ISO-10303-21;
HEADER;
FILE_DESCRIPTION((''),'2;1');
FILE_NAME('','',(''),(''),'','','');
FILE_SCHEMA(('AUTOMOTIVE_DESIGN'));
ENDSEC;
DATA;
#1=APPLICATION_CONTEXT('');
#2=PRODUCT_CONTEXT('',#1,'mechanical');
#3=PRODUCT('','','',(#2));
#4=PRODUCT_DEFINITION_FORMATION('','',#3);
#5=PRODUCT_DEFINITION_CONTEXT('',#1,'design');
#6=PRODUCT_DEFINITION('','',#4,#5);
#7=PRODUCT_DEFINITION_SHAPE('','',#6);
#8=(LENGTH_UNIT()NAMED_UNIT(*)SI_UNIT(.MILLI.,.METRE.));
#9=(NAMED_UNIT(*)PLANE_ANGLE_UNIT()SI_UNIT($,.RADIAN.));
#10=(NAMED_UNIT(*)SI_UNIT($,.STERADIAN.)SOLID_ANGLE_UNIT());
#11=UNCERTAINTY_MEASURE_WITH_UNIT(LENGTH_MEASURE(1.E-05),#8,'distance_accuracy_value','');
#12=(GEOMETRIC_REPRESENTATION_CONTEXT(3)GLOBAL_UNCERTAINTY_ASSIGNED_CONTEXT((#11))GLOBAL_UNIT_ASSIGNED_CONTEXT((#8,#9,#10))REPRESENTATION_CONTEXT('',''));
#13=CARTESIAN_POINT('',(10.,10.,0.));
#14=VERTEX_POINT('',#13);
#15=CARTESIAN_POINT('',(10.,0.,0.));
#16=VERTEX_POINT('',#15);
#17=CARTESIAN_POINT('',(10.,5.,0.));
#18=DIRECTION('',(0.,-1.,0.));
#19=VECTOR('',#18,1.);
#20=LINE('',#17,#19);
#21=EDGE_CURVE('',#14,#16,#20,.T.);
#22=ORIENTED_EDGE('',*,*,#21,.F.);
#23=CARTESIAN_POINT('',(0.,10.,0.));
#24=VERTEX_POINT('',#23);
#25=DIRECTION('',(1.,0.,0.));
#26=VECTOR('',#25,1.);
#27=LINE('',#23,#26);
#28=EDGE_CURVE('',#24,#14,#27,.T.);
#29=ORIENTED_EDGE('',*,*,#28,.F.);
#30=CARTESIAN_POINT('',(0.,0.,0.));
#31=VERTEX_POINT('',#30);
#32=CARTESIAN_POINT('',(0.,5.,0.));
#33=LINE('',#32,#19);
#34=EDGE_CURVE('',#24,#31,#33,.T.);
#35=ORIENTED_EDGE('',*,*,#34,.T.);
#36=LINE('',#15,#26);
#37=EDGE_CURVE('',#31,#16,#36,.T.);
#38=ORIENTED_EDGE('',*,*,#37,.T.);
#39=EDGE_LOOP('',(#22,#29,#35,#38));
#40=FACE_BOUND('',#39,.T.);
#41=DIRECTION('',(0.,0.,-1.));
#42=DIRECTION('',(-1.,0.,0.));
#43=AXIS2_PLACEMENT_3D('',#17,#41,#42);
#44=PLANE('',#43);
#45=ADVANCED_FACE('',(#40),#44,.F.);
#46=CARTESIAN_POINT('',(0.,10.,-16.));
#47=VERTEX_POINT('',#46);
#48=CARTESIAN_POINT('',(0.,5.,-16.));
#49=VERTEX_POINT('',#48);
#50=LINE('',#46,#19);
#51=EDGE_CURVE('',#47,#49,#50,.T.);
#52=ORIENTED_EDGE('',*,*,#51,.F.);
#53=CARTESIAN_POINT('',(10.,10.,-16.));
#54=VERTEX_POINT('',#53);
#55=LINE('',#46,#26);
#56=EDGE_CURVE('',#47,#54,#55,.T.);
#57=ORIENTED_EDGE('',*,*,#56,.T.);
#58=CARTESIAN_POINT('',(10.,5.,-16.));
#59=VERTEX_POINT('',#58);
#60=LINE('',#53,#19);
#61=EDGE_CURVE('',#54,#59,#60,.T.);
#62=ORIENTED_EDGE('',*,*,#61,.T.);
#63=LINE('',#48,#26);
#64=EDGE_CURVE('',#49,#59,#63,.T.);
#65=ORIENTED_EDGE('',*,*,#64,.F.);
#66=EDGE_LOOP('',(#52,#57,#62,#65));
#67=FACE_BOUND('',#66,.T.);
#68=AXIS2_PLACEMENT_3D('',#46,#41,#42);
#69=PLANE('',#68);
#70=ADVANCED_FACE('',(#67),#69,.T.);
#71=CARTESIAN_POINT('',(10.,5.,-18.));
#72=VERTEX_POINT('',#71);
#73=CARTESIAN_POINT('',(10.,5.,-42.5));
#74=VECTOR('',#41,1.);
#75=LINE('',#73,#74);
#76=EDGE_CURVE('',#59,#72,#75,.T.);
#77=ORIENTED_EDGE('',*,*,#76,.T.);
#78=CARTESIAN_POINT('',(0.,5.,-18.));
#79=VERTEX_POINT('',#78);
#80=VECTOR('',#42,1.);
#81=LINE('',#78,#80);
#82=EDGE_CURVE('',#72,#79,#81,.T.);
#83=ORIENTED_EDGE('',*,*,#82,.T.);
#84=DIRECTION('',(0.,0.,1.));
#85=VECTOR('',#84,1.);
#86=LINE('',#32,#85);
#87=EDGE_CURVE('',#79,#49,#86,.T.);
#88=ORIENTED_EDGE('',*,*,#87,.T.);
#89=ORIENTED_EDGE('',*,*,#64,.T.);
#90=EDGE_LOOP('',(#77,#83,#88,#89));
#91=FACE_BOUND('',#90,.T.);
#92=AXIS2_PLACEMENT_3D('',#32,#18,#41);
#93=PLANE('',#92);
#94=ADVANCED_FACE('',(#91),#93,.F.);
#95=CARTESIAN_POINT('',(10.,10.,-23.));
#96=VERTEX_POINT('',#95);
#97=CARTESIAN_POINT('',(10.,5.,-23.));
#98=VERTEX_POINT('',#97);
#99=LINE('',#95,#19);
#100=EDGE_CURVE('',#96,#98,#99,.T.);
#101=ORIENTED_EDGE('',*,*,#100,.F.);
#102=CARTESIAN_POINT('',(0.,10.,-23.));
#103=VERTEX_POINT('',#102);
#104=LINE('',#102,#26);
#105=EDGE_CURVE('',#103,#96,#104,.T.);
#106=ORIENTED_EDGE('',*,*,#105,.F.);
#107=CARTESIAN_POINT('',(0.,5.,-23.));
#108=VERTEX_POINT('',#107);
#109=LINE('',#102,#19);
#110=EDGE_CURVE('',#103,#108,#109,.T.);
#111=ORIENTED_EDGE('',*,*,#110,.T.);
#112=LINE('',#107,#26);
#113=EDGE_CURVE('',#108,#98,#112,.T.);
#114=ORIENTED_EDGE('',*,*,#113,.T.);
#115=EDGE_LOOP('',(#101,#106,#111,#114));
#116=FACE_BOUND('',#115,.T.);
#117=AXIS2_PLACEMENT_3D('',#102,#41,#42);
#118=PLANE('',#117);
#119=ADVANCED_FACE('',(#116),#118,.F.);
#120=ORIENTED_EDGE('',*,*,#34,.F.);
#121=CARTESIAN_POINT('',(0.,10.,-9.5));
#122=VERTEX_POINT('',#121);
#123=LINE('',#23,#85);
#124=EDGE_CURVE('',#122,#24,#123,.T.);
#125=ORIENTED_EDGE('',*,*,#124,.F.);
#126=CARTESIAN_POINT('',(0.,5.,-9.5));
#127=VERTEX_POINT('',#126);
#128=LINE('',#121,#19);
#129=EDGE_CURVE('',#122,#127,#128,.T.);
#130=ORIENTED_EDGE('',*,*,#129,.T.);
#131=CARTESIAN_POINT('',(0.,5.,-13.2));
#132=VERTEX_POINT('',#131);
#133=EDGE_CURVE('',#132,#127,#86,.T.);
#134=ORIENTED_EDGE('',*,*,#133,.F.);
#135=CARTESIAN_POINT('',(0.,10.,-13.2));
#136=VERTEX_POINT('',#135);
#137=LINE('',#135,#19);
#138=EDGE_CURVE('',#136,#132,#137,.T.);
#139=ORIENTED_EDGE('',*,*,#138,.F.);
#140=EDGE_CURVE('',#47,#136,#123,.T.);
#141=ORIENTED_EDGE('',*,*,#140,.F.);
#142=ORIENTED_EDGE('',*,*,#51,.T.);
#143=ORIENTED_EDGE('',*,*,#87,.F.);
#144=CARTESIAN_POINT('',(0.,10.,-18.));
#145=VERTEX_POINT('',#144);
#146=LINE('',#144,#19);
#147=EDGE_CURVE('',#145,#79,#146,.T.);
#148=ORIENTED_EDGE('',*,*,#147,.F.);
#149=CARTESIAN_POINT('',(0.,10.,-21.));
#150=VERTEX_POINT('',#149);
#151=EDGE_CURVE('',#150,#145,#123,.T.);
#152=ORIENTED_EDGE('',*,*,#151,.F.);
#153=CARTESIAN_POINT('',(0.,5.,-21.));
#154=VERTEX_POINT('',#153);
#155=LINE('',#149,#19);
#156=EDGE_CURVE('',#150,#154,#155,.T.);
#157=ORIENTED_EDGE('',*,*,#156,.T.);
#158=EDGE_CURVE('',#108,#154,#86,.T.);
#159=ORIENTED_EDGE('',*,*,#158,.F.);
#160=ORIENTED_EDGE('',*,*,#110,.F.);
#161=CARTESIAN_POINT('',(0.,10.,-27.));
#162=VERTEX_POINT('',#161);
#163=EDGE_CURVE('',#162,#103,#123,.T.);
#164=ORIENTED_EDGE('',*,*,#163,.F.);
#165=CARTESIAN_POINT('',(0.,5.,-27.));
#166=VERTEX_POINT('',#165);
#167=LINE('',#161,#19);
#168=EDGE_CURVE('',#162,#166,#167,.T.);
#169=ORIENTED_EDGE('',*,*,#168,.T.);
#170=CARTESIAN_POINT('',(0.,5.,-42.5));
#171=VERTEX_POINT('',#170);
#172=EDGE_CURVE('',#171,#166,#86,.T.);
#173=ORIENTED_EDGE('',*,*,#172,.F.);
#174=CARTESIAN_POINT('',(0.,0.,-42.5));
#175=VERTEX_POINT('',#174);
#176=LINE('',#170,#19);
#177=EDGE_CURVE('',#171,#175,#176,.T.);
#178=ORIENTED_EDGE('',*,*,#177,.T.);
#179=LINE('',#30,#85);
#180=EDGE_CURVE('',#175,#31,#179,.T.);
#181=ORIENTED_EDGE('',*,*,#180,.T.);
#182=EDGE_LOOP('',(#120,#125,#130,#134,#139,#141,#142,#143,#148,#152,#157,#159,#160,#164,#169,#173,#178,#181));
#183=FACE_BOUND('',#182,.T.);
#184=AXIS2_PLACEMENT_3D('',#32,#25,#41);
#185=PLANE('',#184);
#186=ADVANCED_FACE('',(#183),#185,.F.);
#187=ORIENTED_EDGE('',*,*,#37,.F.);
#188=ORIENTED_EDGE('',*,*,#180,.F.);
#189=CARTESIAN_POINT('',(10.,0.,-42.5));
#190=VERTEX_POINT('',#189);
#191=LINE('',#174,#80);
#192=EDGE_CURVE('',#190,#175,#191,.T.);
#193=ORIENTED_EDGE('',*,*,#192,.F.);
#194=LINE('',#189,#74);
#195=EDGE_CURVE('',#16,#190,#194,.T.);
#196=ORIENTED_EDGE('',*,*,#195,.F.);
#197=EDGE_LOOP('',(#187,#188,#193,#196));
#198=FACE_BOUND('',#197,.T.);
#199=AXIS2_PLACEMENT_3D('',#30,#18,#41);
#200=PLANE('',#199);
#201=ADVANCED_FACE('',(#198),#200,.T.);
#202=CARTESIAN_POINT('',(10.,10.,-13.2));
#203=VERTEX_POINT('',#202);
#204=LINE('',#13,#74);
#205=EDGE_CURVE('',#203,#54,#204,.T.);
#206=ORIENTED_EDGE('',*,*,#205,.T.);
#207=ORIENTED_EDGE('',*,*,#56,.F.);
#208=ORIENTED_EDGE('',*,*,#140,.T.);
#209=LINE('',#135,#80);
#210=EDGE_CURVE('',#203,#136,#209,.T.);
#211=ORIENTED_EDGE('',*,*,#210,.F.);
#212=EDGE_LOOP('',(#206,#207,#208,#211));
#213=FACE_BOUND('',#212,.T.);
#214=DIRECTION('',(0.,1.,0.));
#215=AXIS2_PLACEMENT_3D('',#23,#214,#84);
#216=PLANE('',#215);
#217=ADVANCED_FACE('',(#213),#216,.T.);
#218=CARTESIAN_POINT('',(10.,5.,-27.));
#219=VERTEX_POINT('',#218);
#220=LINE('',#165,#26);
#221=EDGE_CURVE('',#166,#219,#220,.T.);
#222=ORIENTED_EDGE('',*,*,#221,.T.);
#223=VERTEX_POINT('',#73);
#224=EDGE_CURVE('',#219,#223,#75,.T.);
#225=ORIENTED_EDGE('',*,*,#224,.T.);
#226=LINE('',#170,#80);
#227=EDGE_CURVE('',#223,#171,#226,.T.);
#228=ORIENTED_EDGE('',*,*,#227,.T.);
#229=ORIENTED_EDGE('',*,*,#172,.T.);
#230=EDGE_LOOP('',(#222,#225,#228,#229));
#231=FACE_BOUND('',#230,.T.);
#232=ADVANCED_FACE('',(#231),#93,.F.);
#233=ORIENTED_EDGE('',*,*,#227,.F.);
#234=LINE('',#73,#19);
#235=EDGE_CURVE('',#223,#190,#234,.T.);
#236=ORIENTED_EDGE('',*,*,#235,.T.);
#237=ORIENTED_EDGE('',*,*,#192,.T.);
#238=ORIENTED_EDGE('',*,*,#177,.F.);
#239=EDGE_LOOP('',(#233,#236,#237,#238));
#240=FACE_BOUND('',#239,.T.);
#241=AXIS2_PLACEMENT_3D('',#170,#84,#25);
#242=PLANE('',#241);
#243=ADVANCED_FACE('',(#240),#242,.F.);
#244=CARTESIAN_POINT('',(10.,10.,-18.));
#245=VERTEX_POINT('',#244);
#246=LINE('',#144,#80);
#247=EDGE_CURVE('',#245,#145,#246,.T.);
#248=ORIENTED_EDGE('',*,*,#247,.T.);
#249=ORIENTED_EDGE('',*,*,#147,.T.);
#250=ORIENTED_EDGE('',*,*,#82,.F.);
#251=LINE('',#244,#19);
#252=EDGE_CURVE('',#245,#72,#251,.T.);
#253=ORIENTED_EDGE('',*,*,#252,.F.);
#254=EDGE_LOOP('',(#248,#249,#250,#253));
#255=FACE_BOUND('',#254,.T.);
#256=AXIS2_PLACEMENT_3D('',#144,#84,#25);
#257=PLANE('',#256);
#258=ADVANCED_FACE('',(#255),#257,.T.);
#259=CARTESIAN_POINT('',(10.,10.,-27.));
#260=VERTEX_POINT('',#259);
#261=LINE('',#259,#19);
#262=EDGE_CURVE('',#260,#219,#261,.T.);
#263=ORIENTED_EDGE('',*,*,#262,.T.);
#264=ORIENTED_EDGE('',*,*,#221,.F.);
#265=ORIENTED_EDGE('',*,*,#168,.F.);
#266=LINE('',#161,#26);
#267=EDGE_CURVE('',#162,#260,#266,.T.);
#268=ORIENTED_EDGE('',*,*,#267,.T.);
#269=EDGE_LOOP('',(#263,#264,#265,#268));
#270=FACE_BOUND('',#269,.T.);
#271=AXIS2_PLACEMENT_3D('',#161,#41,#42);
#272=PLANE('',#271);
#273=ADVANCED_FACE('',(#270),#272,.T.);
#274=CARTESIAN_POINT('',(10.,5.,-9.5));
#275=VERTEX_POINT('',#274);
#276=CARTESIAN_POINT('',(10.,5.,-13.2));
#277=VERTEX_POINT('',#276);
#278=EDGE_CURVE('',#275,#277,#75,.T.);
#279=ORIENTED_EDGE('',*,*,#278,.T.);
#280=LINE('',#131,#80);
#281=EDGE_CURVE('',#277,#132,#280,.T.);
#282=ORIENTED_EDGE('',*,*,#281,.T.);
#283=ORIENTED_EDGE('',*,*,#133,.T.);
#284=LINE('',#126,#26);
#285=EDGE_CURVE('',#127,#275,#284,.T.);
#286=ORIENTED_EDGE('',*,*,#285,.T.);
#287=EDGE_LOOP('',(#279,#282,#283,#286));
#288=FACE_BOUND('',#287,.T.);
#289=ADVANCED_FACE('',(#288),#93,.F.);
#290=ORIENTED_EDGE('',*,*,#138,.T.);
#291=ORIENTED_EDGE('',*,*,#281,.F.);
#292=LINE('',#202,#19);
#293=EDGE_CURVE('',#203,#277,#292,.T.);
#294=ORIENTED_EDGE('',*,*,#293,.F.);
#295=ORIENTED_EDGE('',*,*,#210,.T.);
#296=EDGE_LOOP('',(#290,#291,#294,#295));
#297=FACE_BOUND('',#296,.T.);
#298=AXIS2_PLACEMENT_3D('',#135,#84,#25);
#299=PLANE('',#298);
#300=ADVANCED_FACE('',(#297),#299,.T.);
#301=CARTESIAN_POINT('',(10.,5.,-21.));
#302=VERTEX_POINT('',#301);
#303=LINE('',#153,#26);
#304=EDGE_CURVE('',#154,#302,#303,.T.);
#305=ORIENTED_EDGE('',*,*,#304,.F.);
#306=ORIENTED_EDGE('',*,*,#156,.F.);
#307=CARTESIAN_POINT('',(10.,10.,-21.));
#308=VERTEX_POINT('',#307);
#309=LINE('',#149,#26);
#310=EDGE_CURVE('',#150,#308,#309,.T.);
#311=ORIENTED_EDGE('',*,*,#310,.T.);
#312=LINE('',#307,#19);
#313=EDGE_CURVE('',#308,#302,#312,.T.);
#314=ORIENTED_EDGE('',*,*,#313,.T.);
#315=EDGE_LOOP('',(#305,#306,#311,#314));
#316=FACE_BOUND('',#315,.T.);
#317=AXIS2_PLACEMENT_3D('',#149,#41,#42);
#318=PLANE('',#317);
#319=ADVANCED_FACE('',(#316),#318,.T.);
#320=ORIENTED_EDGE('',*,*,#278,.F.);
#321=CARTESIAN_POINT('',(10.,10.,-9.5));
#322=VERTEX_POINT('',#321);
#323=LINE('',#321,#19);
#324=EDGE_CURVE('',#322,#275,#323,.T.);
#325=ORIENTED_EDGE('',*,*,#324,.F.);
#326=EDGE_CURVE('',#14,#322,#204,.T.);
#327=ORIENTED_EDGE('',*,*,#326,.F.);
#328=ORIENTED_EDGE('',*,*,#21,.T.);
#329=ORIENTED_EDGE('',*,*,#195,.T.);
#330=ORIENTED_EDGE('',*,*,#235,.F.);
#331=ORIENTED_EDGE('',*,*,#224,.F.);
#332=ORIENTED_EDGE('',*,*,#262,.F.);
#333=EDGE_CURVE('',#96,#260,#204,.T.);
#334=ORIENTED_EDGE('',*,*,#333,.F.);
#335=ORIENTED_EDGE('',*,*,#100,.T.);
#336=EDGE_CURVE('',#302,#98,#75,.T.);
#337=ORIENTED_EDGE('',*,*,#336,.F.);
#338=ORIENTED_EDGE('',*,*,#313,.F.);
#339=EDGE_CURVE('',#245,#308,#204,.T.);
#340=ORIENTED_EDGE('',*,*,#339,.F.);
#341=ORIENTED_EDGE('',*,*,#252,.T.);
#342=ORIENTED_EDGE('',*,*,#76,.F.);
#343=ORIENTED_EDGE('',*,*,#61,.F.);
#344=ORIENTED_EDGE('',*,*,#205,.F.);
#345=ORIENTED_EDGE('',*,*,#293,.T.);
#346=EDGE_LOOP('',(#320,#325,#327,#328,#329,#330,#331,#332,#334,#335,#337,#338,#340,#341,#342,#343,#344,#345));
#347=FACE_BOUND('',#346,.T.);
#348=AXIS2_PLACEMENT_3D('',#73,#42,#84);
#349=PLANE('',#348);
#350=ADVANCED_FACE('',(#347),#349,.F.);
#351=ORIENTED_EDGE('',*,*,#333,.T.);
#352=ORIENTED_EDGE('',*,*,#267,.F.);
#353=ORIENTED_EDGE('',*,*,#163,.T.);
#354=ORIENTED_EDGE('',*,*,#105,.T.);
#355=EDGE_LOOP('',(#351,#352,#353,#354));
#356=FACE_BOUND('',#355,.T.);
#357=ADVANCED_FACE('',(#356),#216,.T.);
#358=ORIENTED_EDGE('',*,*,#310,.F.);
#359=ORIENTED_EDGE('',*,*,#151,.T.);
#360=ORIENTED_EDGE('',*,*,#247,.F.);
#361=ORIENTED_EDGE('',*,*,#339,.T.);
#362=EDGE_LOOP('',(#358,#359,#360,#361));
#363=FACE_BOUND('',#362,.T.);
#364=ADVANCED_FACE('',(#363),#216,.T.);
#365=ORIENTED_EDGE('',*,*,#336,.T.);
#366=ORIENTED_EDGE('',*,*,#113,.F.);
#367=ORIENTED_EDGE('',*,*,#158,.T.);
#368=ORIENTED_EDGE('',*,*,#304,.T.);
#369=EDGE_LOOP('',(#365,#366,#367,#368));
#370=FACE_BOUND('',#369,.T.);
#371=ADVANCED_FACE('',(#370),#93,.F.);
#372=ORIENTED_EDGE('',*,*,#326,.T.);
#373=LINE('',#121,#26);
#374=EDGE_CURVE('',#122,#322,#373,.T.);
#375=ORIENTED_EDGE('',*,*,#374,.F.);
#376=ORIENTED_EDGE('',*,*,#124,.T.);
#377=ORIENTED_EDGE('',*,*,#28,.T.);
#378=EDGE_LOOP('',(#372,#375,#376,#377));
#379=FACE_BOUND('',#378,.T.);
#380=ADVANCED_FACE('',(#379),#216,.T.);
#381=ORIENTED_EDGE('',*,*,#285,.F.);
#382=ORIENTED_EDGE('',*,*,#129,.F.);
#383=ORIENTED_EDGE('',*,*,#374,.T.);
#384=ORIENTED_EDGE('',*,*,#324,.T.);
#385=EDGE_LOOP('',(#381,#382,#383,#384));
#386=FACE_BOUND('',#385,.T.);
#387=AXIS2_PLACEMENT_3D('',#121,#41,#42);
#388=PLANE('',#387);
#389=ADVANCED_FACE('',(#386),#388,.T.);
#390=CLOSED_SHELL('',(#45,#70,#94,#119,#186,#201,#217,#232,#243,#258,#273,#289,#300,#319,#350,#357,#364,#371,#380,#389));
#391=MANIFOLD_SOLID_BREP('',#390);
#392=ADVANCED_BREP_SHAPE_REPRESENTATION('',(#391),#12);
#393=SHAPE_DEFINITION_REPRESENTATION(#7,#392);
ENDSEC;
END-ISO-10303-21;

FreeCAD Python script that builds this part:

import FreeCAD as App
import Part
import Sketcher
Q = App.Units.Quantity


def add_polygon(sketch, points):
    """Adds a closed chain of lines whose ends are joined by coincident constraints."""
    first, n = sketch.GeometryCount, len(points)
    for a, b in zip(points, points[1:] + points[:1]):
        sketch.addGeometry(Part.LineSegment(App.Vector(*a, 0), App.Vector(*b, 0)), False)
    for i in range(n):
        sketch.addConstraint(Sketcher.Constraint("Coincident", first + i, 2, first + (i + 1) % n, 1))

doc = App.newDocument("Part")
body = doc.addObject("PartDesign::Body", "Body")

# Sketch on XZ plane
sketch1 = doc.addObject("Sketcher::SketchObject", "Sketch")
body.addObject(sketch1)
sketch1.AttachmentSupport = (doc.XZ_Plane, [""])
sketch1.MapMode = "FlatFace"
add_polygon(sketch1, [(0, -42), (0, 0), (10, 0), (10, -42)])  # lines 0-3
sketch1.addConstraint([
    Sketcher.Constraint("Vertical", 0),
    Sketcher.Constraint("Horizontal", 1),
    Sketcher.Constraint("Vertical", 2),
    Sketcher.Constraint("Horizontal", 3),
    Sketcher.Constraint("Coincident", 0, 2, -1, 1),
    Sketcher.Constraint("DistanceX", 1, 1, 1, 2, Q("10 mm")),
    Sketcher.Constraint("DistanceY", 0, 1, 0, 2, Q("42.5 mm")),
])
pad1 = doc.addObject("PartDesign::Pad", "Pad")
body.addObject(pad1)
pad1.Profile = sketch1
pad1.Length = 5
pad1.Reversed = True

# Sketch on XZ plane
sketch2 = doc.addObject("Sketcher::SketchObject", "Sketch001")
body.addObject(sketch2)
sketch2.AttachmentSupport = (doc.XZ_Plane, [""])
sketch2.MapMode = "FlatFace"
sketch2.AttachmentOffset = App.Placement(App.Vector(0, 0, -5), App.Rotation())
add_polygon(sketch2, [(0, -9.5), (0, 0), (10, 0), (10, -9.5)])  # lines 0-3
add_polygon(sketch2, [(0, -21), (0, -18), (10, -18), (10, -21)])  # lines 4-7
add_polygon(sketch2, [(0, -16), (0, -13.2), (10, -13.2), (10, -16)])  # lines 8-11
add_polygon(sketch2, [(0, -27), (0, -23), (10, -23), (10, -27)])  # lines 12-15
sketch2.addConstraint([
    Sketcher.Constraint("Vertical", 0),
    Sketcher.Constraint("Horizontal", 1),
    Sketcher.Constraint("Vertical", 2),
    Sketcher.Constraint("Horizontal", 3),
    Sketcher.Constraint("Vertical", 4),
    Sketcher.Constraint("Horizontal", 5),
    Sketcher.Constraint("Vertical", 6),
    Sketcher.Constraint("Horizontal", 7),
    Sketcher.Constraint("Vertical", 8),
    Sketcher.Constraint("Horizontal", 9),
    Sketcher.Constraint("Vertical", 10),
    Sketcher.Constraint("Horizontal", 11),
    Sketcher.Constraint("Vertical", 12),
    Sketcher.Constraint("Horizontal", 13),
    Sketcher.Constraint("Vertical", 14),
    Sketcher.Constraint("Horizontal", 15),
    Sketcher.Constraint("Coincident", 0, 2, -1, 1),
    Sketcher.Constraint("PointOnObject", 4, 2, -2),
    Sketcher.Constraint("PointOnObject", 8, 2, -2),
    Sketcher.Constraint("PointOnObject", 12, 2, -2),
    Sketcher.Constraint("Vertical", 2, 2, 5, 2),
    Sketcher.Constraint("Vertical", 6, 2, 9, 2),
    Sketcher.Constraint("Vertical", 10, 2, 13, 2),
    Sketcher.Constraint("DistanceX", 1, 1, 1, 2, Q("10 mm")),
    Sketcher.Constraint("DistanceY", 4, 1, 4, 2, Q("3 mm")),
    Sketcher.Constraint("DistanceY", 12, 1, 12, 2, Q("4 mm")),
    Sketcher.Constraint("DistanceY", 0, 1, 0, 2, Q("9.5 mm")),
    Sketcher.Constraint("DistanceY", 8, 1, 8, 2, Q("2.8 mm")),
    Sketcher.Constraint("DistanceY", 4, 2, -1, 1, Q("18 mm")),
    Sketcher.Constraint("DistanceY", 10, 2, -1, 1, Q("16 mm")),
    Sketcher.Constraint("DistanceY", 12, 2, -1, 1, Q("23 mm")),
])
pad2 = doc.addObject("PartDesign::Pad", "Pad001")
body.addObject(pad2)
pad2.Profile = sketch2
pad2.Length = 5
pad2.Reversed = True

doc.recompute()
